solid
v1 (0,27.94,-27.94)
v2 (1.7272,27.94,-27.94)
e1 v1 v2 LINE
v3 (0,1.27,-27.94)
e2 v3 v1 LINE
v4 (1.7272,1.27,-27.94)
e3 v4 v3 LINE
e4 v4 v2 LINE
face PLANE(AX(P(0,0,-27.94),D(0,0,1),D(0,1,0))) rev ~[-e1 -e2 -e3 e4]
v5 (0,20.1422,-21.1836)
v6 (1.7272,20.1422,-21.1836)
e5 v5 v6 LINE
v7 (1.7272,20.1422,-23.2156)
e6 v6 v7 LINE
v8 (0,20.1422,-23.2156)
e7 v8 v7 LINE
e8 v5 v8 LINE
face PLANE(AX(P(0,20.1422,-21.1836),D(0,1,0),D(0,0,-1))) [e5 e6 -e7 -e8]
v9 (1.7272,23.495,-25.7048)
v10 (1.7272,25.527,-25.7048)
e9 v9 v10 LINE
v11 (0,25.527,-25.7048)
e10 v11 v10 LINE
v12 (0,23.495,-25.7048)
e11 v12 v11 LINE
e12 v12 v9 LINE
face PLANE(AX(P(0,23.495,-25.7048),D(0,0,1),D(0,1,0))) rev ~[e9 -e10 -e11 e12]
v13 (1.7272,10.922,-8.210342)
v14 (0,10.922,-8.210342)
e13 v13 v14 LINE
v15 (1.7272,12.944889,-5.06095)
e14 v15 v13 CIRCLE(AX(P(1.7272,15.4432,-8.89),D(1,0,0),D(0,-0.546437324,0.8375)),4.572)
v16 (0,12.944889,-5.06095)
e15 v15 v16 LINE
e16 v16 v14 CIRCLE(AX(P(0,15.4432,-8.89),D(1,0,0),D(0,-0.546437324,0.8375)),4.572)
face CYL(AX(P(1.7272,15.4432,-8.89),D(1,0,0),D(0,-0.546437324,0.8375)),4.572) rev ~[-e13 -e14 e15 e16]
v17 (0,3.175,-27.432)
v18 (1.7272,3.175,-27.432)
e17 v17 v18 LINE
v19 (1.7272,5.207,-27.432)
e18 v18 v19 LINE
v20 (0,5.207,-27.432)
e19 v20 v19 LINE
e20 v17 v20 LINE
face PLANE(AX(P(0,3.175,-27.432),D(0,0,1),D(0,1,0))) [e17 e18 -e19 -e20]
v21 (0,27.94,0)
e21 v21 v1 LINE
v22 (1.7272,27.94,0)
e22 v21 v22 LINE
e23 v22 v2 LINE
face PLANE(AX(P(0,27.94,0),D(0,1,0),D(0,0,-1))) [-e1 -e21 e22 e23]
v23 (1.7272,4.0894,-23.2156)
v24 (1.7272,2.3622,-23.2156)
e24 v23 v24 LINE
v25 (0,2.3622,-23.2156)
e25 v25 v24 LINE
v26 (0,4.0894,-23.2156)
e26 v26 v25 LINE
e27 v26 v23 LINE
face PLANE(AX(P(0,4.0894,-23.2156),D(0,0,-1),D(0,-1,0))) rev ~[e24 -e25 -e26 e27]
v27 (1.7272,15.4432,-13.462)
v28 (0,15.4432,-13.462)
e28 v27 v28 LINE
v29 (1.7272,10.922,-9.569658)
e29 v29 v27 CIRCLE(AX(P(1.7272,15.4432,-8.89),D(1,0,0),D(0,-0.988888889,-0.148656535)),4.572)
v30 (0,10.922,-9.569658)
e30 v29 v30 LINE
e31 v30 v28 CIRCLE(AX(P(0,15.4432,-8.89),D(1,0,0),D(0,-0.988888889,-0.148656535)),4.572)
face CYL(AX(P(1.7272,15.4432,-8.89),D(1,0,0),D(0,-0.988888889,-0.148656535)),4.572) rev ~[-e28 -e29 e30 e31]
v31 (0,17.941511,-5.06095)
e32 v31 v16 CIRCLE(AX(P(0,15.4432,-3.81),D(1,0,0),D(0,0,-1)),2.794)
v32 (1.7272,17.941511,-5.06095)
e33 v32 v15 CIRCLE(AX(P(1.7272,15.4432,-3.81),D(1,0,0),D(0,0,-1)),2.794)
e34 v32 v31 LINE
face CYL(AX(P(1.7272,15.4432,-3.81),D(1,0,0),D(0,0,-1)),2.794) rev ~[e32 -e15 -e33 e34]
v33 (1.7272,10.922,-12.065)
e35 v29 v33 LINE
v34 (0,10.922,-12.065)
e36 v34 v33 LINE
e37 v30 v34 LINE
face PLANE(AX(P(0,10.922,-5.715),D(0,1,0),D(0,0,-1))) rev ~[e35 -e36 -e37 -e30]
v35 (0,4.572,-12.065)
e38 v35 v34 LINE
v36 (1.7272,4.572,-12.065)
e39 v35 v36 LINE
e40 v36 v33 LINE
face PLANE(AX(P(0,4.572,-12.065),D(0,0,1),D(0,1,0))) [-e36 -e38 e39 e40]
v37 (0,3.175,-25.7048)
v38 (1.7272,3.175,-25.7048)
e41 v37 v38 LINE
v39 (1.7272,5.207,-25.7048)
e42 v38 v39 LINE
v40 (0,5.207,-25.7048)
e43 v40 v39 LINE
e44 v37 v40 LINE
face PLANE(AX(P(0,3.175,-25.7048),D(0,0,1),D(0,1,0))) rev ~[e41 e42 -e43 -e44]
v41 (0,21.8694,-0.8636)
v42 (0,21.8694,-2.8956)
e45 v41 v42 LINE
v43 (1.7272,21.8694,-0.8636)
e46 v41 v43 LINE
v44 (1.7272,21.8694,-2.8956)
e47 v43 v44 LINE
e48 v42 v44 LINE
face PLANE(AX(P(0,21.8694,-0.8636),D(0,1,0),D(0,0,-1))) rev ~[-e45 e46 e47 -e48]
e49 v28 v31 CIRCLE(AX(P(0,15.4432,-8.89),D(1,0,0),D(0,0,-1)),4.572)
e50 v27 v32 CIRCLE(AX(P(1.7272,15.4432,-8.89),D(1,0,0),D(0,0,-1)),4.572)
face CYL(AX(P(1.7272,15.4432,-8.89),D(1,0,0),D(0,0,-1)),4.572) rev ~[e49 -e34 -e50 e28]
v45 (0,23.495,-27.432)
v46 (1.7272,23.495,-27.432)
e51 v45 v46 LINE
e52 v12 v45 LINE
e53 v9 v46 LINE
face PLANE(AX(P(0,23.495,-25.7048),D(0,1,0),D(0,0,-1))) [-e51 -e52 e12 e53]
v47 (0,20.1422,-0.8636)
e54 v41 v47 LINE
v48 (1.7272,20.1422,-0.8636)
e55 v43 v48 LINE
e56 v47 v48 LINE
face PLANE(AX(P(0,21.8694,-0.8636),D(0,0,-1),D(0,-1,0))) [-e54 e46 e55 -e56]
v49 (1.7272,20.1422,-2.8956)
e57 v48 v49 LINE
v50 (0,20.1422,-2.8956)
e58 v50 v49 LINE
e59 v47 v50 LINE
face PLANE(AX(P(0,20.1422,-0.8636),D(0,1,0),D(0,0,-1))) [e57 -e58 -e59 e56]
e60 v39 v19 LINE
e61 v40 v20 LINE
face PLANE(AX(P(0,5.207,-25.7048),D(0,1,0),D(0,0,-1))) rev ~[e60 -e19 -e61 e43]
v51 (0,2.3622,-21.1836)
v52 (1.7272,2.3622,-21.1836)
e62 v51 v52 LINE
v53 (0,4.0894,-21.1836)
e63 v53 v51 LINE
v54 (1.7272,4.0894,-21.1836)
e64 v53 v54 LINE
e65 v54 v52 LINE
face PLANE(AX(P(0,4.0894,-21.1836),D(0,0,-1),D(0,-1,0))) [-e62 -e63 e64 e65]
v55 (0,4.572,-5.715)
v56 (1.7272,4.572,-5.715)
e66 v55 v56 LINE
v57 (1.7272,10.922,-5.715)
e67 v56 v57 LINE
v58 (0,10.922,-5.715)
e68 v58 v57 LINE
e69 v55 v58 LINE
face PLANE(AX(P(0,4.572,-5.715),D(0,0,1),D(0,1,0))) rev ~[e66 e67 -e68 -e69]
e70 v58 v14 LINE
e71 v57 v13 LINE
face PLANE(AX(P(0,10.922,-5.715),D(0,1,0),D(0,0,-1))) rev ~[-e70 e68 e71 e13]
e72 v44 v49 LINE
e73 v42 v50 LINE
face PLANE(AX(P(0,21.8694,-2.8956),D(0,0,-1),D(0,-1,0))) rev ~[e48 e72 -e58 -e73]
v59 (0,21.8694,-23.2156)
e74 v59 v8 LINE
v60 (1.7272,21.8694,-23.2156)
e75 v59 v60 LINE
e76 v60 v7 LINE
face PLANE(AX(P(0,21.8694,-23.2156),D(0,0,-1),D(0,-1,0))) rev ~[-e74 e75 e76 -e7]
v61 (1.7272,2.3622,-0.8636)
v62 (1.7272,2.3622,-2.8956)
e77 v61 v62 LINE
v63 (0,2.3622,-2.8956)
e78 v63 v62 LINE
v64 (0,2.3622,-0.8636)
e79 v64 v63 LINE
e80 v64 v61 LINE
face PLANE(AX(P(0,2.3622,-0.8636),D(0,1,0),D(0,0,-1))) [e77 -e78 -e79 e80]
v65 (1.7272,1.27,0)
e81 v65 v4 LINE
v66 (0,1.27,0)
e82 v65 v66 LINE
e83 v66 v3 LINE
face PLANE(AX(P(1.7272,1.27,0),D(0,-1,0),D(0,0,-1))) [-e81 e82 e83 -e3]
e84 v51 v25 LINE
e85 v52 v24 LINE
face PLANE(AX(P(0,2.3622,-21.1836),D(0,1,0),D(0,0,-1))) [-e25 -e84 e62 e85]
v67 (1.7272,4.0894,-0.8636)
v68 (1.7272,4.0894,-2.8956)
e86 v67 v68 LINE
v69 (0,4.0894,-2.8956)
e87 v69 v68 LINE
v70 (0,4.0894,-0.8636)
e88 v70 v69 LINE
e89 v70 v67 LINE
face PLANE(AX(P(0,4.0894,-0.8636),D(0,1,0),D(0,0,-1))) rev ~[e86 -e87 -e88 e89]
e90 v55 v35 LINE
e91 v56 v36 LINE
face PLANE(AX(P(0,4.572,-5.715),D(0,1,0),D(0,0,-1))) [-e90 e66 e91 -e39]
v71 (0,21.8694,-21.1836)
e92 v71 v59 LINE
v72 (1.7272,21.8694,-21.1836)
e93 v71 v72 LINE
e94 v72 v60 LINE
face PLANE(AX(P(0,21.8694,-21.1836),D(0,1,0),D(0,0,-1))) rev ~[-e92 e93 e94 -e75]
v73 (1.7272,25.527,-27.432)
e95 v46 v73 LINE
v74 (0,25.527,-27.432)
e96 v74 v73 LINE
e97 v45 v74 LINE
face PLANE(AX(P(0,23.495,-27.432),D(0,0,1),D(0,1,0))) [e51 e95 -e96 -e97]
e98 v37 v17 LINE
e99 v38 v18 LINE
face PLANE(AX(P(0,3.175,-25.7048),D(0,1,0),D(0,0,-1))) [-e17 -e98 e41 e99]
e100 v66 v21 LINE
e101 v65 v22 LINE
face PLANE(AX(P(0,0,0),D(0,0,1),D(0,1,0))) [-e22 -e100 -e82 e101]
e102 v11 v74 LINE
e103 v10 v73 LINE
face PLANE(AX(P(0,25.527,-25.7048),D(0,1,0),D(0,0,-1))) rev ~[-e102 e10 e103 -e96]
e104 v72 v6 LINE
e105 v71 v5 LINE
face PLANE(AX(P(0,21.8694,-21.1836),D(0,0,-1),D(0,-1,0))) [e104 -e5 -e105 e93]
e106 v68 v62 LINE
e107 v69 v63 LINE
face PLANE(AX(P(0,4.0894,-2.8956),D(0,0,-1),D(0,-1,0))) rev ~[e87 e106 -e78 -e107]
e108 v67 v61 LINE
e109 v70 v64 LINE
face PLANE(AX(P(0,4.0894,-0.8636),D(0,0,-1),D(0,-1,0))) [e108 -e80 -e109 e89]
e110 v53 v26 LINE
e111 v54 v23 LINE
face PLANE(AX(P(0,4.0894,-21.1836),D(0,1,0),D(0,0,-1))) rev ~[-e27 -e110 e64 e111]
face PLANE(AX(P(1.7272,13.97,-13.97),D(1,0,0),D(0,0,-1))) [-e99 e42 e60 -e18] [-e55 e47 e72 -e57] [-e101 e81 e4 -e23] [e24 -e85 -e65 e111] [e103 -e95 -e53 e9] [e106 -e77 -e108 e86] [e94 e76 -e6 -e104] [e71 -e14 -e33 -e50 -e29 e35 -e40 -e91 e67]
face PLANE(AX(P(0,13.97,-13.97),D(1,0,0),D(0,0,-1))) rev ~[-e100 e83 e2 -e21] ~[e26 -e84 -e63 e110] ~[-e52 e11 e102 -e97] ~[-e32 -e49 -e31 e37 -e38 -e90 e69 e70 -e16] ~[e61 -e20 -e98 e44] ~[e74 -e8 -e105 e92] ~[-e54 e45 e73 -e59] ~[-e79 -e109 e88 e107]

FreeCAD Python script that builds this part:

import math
import FreeCAD as App
import Part
import Sketcher

V = App.Vector
Q = App.Units.Quantity

doc = App.newDocument("Part")
body = doc.addObject("PartDesign::Body", "Body")

sketch1 = body.newObject("Sketcher::SketchObject", "Sketch")
sketch1.AttachmentSupport = (doc.getObject("YZ_Plane"), [""])
sketch1.MapMode = "FlatFace"
sketch1.addGeometry(Part.LineSegment(V(27.94, 0, 0), V(0, 0, 0)), False)
sketch1.addGeometry(Part.LineSegment(V(0, 0, 0), V(0, -27.94, 0)), False)
sketch1.addGeometry(Part.LineSegment(V(0, -27.94, 0), V(27.94, -27.94, 0)), False)
sketch1.addGeometry(Part.LineSegment(V(27.94, -27.94, 0), V(27.94, 0, 0)), False)
sketch1.addGeometry(Part.LineSegment(V(4.572, -12.065, 0), V(4.572, -5.715, 0)), False)
sketch1.addGeometry(Part.LineSegment(V(4.572, -5.715, 0), V(10.922, -5.715, 0)), False)
sketch1.addGeometry(Part.LineSegment(V(10.922, -5.715, 0), V(10.922, -12.065, 0)), False)
sketch1.addGeometry(Part.LineSegment(V(10.922, -12.065, 0), V(4.572, -12.065, 0)), False)
sketch1.addGeometry(Part.LineSegment(V(3.175, -27.432, 0), V(3.175, -25.7048, 0)), False)
sketch1.addGeometry(Part.LineSegment(V(3.175, -25.7048, 0), V(5.207, -25.7048, 0)), False)
sketch1.addGeometry(Part.LineSegment(V(5.207, -25.7048, 0), V(5.207, -27.432, 0)), False)
sketch1.addGeometry(Part.LineSegment(V(5.207, -27.432, 0), V(3.175, -27.432, 0)), False)
sketch1.addGeometry(Part.LineSegment(V(23.495, -27.432, 0), V(23.495, -25.7048, 0)), False)
sketch1.addGeometry(Part.LineSegment(V(23.495, -25.7048, 0), V(25.527, -25.7048, 0)), False)
sketch1.addGeometry(Part.LineSegment(V(25.527, -25.7048, 0), V(25.527, -27.432, 0)), False)
sketch1.addGeometry(Part.LineSegment(V(25.527, -27.432, 0), V(23.495, -27.432, 0)), False)
sketch1.addConstraint(Sketcher.Constraint("Coincident", 0, 2, 1, 1))
sketch1.addConstraint(Sketcher.Constraint("Coincident", 1, 2, 2, 1))
sketch1.addConstraint(Sketcher.Constraint("Coincident", 2, 2, 3, 1))
sketch1.addConstraint(Sketcher.Constraint("Coincident", 3, 2, 0, 1))
sketch1.addConstraint(Sketcher.Constraint("Coincident", 4, 2, 5, 1))
sketch1.addConstraint(Sketcher.Constraint("Coincident", 5, 2, 6, 1))
sketch1.addConstraint(Sketcher.Constraint("Coincident", 6, 2, 7, 1))
sketch1.addConstraint(Sketcher.Constraint("Coincident", 7, 2, 4, 1))
sketch1.addConstraint(Sketcher.Constraint("Coincident", 8, 2, 9, 1))
sketch1.addConstraint(Sketcher.Constraint("Coincident", 9, 2, 10, 1))
sketch1.addConstraint(Sketcher.Constraint("Coincident", 10, 2, 11, 1))
sketch1.addConstraint(Sketcher.Constraint("Coincident", 11, 2, 8, 1))
sketch1.addConstraint(Sketcher.Constraint("Coincident", 12, 2, 13, 1))
sketch1.addConstraint(Sketcher.Constraint("Coincident", 13, 2, 14, 1))
sketch1.addConstraint(Sketcher.Constraint("Coincident", 14, 2, 15, 1))
sketch1.addConstraint(Sketcher.Constraint("Coincident", 15, 2, 12, 1))
sketch1.addConstraint(Sketcher.Constraint("Horizontal", 0))
sketch1.addConstraint(Sketcher.Constraint("Vertical", 1))
sketch1.addConstraint(Sketcher.Constraint("Horizontal", 2))
sketch1.addConstraint(Sketcher.Constraint("Vertical", 3))
sketch1.addConstraint(Sketcher.Constraint("Vertical", 4))
sketch1.addConstraint(Sketcher.Constraint("Horizontal", 5))
sketch1.addConstraint(Sketcher.Constraint("Vertical", 6))
sketch1.addConstraint(Sketcher.Constraint("Horizontal", 7))
sketch1.addConstraint(Sketcher.Constraint("Vertical", 8))
sketch1.addConstraint(Sketcher.Constraint("Horizontal", 9))
sketch1.addConstraint(Sketcher.Constraint("Vertical", 10))
sketch1.addConstraint(Sketcher.Constraint("Horizontal", 11))
sketch1.addConstraint(Sketcher.Constraint("Vertical", 12))
sketch1.addConstraint(Sketcher.Constraint("Horizontal", 13))
sketch1.addConstraint(Sketcher.Constraint("Vertical", 14))
sketch1.addConstraint(Sketcher.Constraint("Horizontal", 15))
sketch1.addConstraint(Sketcher.Constraint("Coincident", 0, 2, -1, 1))
sketch1.addConstraint(Sketcher.Constraint("Horizontal", 9, 2, 12, 2))
sketch1.addConstraint(Sketcher.Constraint("Horizontal", 11, 2, 14, 2))
sketch1.addConstraint(Sketcher.Constraint("Equal", 11, 13))
sketch1.addConstraint(Sketcher.Constraint("Equal", 2, 1))
sketch1.addConstraint(Sketcher.Constraint("Equal", 7, 4))
sketch1.addConstraint(Sketcher.Constraint("DistanceX", 0, 2, 0, 1, Q("1.1 in")))
sketch1.addConstraint(Sketcher.Constraint("DistanceX", 5, 1, 5, 2, Q("0.25 in")))
sketch1.addConstraint(Sketcher.Constraint("DistanceX", 9, 1, 9, 2, Q("0.08 in")))
sketch1.addConstraint(Sketcher.Constraint("DistanceX", 8, 2, 12, 2, Q("0.8 in")))
sketch1.addConstraint(Sketcher.Constraint("DistanceY", 8, 1, 8, 2, Q("0.068 in")))
sketch1.addConstraint(Sketcher.Constraint("DistanceX", -1, 1, 4, 2, Q("0.18 in")))
sketch1.addConstraint(Sketcher.Constraint("DistanceY", 10, 2, -1, 1, Q("1.08 in")))
sketch1.addConstraint(Sketcher.Constraint("DistanceY", 4, 2, -1, 1, Q("0.225 in")))
sketch1.addConstraint(Sketcher.Constraint("DistanceX", -1, 1, 8, 2, Q("0.125 in")))
pad1 = body.newObject("PartDesign::Pad", "Pad")
pad1.Profile = sketch1
pad1.Length = Q("0.068 in")

sketch2 = body.newObject("Sketcher::SketchObject", "Sketch001")
sketch2.AttachmentSupport = (doc.getObject("YZ_Plane"), [""])
sketch2.MapMode = "FlatFace"
sketch2.AttachmentOffset = App.Placement(V(0, 0, 0.068 * 25.4), App.Rotation())
sketch2.addGeometry(Part.ArcOfCircle(Part.Circle(V(15.4432, -8.89, 0), V(0, 0, 1), 4.572), math.radians(-90), math.radians(56.87706)), False)
sketch2.addGeometry(Part.ArcOfCircle(Part.Circle(V(15.4432, -3.81, 0), V(0, 0, 1), 2.794), math.radians(-26.597961), math.radians(206.597961)), False)
sketch2.addGeometry(Part.ArcOfCircle(Part.Circle(V(15.4432, -8.89, 0), V(0, 0, 1), 4.572), math.radians(123.12294), math.radians(171.450921)), False)
sketch2.addGeometry(Part.ArcOfCircle(Part.Circle(V(15.4432, -8.89, 0), V(0, 0, 1), 4.572), math.radians(171.450921), math.radians(188.549079)), False)
sketch2.addGeometry(Part.ArcOfCircle(Part.Circle(V(15.4432, -8.89, 0), V(0, 0, 1), 4.572), math.radians(-171.450921), math.radians(-90)), False)
sketch2.addConstraint(Sketcher.Constraint("Coincident", 0, 2, 1, 1))
sketch2.addConstraint(Sketcher.Constraint("Coincident", 1, 2, 2, 1))
sketch2.addConstraint(Sketcher.Constraint("Tangent", 2, 2, 3, 1))
sketch2.addConstraint(Sketcher.Constraint("Tangent", 3, 2, 4, 1))
sketch2.addConstraint(Sketcher.Constraint("Tangent", 4, 2, 0, 1))
sketch2.addConstraint(Sketcher.Constraint("Coincident", 2, 3, 0, 3))
sketch2.addConstraint(Sketcher.Constraint("Equal", 0, 2))
sketch2.addConstraint(Sketcher.Constraint("Horizontal", 0, 2, 1, 2))
sketch2.addConstraint(Sketcher.Constraint("Vertical", 2, 2, 3, 2))
sketch2.addConstraint(Sketcher.Constraint("Vertical", 3, 3, 4, 2))
sketch2.addConstraint(Sketcher.Constraint("Radius", 0, Q("0.18 in")))
sketch2.addConstraint(Sketcher.Constraint("Radius", 1, Q("0.11 in")))
sketch2.addConstraint(Sketcher.Constraint("DistanceY", 0, 3, 1, 3, Q("0.2 in")))
sketch2.addConstraint(Sketcher.Constraint("DistanceY", 0, 3, -1, 1, Q("0.35 in")))
sketch2.addConstraint(Sketcher.Constraint("DistanceX", -1, 1, 2, 2, Q("0.43 in")))
sketch2.addConstraint(Sketcher.Constraint("DistanceX", -1, 1, 0, 3, Q("0.608 in")))
pocket1 = body.newObject("PartDesign::Pocket", "Pocket")
pocket1.Profile = sketch2
pocket1.Length = Q("0.068 in")

sketch3 = body.newObject("Sketcher::SketchObject", "Sketch002")
sketch3.AttachmentSupport = (doc.getObject("YZ_Plane"), [""])
sketch3.MapMode = "FlatFace"
sketch3.addGeometry(Part.LineSegment(V(21.8694, -23.2156, 0), V(21.8694, -21.1836, 0)), False)
sketch3.addGeometry(Part.LineSegment(V(21.8694, -21.1836, 0), V(20.1422, -21.1836, 0)), False)
sketch3.addGeometry(Part.LineSegment(V(20.1422, -21.1836, 0), V(20.1422, -23.2156, 0)), False)
sketch3.addGeometry(Part.LineSegment(V(20.1422, -23.2156, 0), V(21.8694, -23.2156, 0)), False)
sketch3.addGeometry(Part.LineSegment(V(21.8694, -2.8956, 0), V(21.8694, -0.8636, 0)), False)
sketch3.addGeometry(Part.LineSegment(V(21.8694, -0.8636, 0), V(20.1422, -0.8636, 0)), False)
sketch3.addGeometry(Part.LineSegment(V(20.1422, -0.8636, 0), V(20.1422, -2.8956, 0)), False)
sketch3.addGeometry(Part.LineSegment(V(20.1422, -2.8956, 0), V(21.8694, -2.8956, 0)), False)
sketch3.addConstraint(Sketcher.Constraint("Coincident", 0, 2, 1, 1))
sketch3.addConstraint(Sketcher.Constraint("Coincident", 1, 2, 2, 1))
sketch3.addConstraint(Sketcher.Constraint("Coincident", 2, 2, 3, 1))
sketch3.addConstraint(Sketcher.Constraint("Coincident", 3, 2, 0, 1))
sketch3.addConstraint(Sketcher.Constraint("Coincident", 4, 2, 5, 1))
sketch3.addConstraint(Sketcher.Constraint("Coincident", 5, 2, 6, 1))
sketch3.addConstraint(Sketcher.Constraint("Coincident", 6, 2, 7, 1))
sketch3.addConstraint(Sketcher.Constraint("Coincident", 7, 2, 4, 1))
sketch3.addConstraint(Sketcher.Constraint("Vertical", 0))
sketch3.addConstraint(Sketcher.Constraint("Horizontal", 1))
sketch3.addConstraint(Sketcher.Constraint("Vertical", 2))
sketch3.addConstraint(Sketcher.Constraint("Horizontal", 3))
sketch3.addConstraint(Sketcher.Constraint("Vertical", 4))
sketch3.addConstraint(Sketcher.Constraint("Horizontal", 5))
sketch3.addConstraint(Sketcher.Constraint("Vertical", 6))
sketch3.addConstraint(Sketcher.Constraint("Horizontal", 7))
sketch3.addConstraint(Sketcher.Constraint("Vertical", 3, 2, 4, 2))
sketch3.addConstraint(Sketcher.Constraint("Vertical", 2, 2, 5, 2))
sketch3.addConstraint(Sketcher.Constraint("Equal", 2, 4))
sketch3.addConstraint(Sketcher.Constraint("DistanceY", 0, 1, 0, 2, Q("0.08 in")))
sketch3.addConstraint(Sketcher.Constraint("DistanceY", 0, 2, 4, 2, Q("0.8 in")))
sketch3.addConstraint(Sketcher.Constraint("DistanceX", 1, 2, 1, 1, Q("0.068 in")))
sketch3.addConstraint(Sketcher.Constraint("DistanceX", -1, 1, 0, 2, Q("0.861 in")))
sketch3.addConstraint(Sketcher.Constraint("DistanceY", 0, 2, -1, 1, Q("0.834 in")))
pocket2 = body.newObject("PartDesign::Pocket", "Pocket001")
pocket2.Profile = sketch3
pocket2.Length = Q("0.068 in")
pocket2.Reversed = True

sketch4 = body.newObject("Sketcher::SketchObject", "Sketch003")
sketch4.AttachmentSupport = (doc.getObject("YZ_Plane"), [""])
sketch4.MapMode = "FlatFace"
sketch4.addGeometry(Part.LineSegment(V(4.0894, -23.2156, 0), V(4.0894, -21.1836, 0)), False)
sketch4.addGeometry(Part.LineSegment(V(4.0894, -21.1836, 0), V(2.3622, -21.1836, 0)), False)
sketch4.addGeometry(Part.LineSegment(V(2.3622, -21.1836, 0), V(2.3622, -23.2156, 0)), False)
sketch4.addGeometry(Part.LineSegment(V(2.3622, -23.2156, 0), V(4.0894, -23.2156, 0)), False)
sketch4.addGeometry(Part.LineSegment(V(4.0894, -2.8956, 0), V(4.0894, -0.8636, 0)), False)
sketch4.addGeometry(Part.LineSegment(V(4.0894, -0.8636, 0), V(2.3622, -0.8636, 0)), False)
sketch4.addGeometry(Part.LineSegment(V(2.3622, -0.8636, 0), V(2.3622, -2.8956, 0)), False)
sketch4.addGeometry(Part.LineSegment(V(2.3622, -2.8956, 0), V(4.0894, -2.8956, 0)), False)
sketch4.addConstraint(Sketcher.Constraint("Coincident", 0, 2, 1, 1))
sketch4.addConstraint(Sketcher.Constraint("Coincident", 1, 2, 2, 1))
sketch4.addConstraint(Sketcher.Constraint("Coincident", 2, 2, 3, 1))
sketch4.addConstraint(Sketcher.Constraint("Coincident", 3, 2, 0, 1))
sketch4.addConstraint(Sketcher.Constraint("Coincident", 4, 2, 5, 1))
sketch4.addConstraint(Sketcher.Constraint("Coincident", 5, 2, 6, 1))
sketch4.addConstraint(Sketcher.Constraint("Coincident", 6, 2, 7, 1))
sketch4.addConstraint(Sketcher.Constraint("Coincident", 7, 2, 4, 1))
sketch4.addConstraint(Sketcher.Constraint("Vertical", 0))
sketch4.addConstraint(Sketcher.Constraint("Horizontal", 1))
sketch4.addConstraint(Sketcher.Constraint("Vertical", 2))
sketch4.addConstraint(Sketcher.Constraint("Horizontal", 3))
sketch4.addConstraint(Sketcher.Constraint("Vertical", 4))
sketch4.addConstraint(Sketcher.Constraint("Horizontal", 5))
sketch4.addConstraint(Sketcher.Constraint("Vertical", 6))
sketch4.addConstraint(Sketcher.Constraint("Horizontal", 7))
sketch4.addConstraint(Sketcher.Constraint("Vertical", 3, 2, 4, 2))
sketch4.addConstraint(Sketcher.Constraint("Vertical", 2, 2, 5, 2))
sketch4.addConstraint(Sketcher.Constraint("Equal", 2, 4))
sketch4.addConstraint(Sketcher.Constraint("DistanceY", 0, 1, 0, 2, Q("0.08 in")))
sketch4.addConstraint(Sketcher.Constraint("DistanceY", 0, 2, 4, 2, Q("0.8 in")))
sketch4.addConstraint(Sketcher.Constraint("DistanceX", 1, 2, 1, 1, Q("0.068 in")))
sketch4.addConstraint(Sketcher.Constraint("DistanceX", -1, 1, 0, 2, Q("0.161 in")))
sketch4.addConstraint(Sketcher.Constraint("DistanceY", 0, 2, -1, 1, Q("0.834 in")))
pocket3 = body.newObject("PartDesign::Pocket", "Pocket002")
pocket3.Profile = sketch4
pocket3.Length = Q("0.068 in")
pocket3.Reversed = True

sketch5 = body.newObject("Sketcher::SketchObject", "Sketch004")
sketch5.AttachmentSupport = (doc.getObject("YZ_Plane"), [""])
sketch5.MapMode = "FlatFace"
sketch5.AttachmentOffset = App.Placement(V(0, 0, 0.068 * 25.4), App.Rotation())
sketch5.addGeometry(Part.LineSegment(V(1.27, 0, 0), V(0, 0, 0)), False)
sketch5.addGeometry(Part.LineSegment(V(0, 0, 0), V(0, -27.94, 0)), False)
sketch5.addGeometry(Part.LineSegment(V(0, -27.94, 0), V(1.27, -27.94, 0)), False)
sketch5.addGeometry(Part.LineSegment(V(1.27, -27.94, 0), V(1.27, 0, 0)), False)
sketch5.addConstraint(Sketcher.Constraint("Coincident", 0, 2, 1, 1))
sketch5.addConstraint(Sketcher.Constraint("Coincident", 1, 2, 2, 1))
sketch5.addConstraint(Sketcher.Constraint("Coincident", 2, 2, 3, 1))
sketch5.addConstraint(Sketcher.Constraint("Coincident", 3, 2, 0, 1))
sketch5.addConstraint(Sketcher.Constraint("Horizontal", 0))
sketch5.addConstraint(Sketcher.Constraint("Vertical", 1))
sketch5.addConstraint(Sketcher.Constraint("Horizontal", 2))
sketch5.addConstraint(Sketcher.Constraint("Vertical", 3))
sketch5.addConstraint(Sketcher.Constraint("Coincident", 0, 2, -1, 1))
sketch5.addConstraint(Sketcher.Constraint("DistanceY", 1, 2, 1, 1, Q("1.1 in")))
sketch5.addConstraint(Sketcher.Constraint("DistanceX", 0, 2, 0, 1, Q("0.05 in")))
pocket4 = body.newObject("PartDesign::Pocket", "Pocket003")
pocket4.Profile = sketch5
pocket4.Length = Q("0.068 in")

doc.recompute()
